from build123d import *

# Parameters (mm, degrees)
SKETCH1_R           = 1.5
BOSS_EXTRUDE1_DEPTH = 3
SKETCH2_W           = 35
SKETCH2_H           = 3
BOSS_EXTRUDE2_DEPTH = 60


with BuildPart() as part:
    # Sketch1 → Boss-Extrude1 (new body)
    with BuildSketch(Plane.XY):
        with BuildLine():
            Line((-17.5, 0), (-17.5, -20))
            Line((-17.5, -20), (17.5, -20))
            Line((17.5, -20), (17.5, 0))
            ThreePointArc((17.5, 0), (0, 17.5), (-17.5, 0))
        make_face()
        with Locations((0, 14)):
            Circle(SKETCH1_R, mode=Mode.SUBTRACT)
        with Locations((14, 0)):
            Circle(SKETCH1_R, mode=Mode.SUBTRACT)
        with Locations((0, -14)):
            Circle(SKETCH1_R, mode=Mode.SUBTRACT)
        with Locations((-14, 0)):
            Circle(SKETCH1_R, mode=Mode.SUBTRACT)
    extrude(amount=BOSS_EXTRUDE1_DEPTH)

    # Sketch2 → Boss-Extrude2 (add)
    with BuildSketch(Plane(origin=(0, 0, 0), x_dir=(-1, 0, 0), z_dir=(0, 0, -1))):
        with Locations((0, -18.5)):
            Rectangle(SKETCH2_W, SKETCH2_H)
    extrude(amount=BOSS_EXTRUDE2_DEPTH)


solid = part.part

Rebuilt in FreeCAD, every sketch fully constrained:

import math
import FreeCAD as App
import Part
import Sketcher
from FreeCAD import Vector


def add_polygon(sketch, points):
    """Adds a closed chain of lines whose ends are joined by coincident constraints."""
    first, n = sketch.GeometryCount, len(points)
    for a, b in zip(points, points[1:] + points[:1]):
        sketch.addGeometry(Part.LineSegment(App.Vector(*a, 0), App.Vector(*b, 0)), False)
    for i in range(n):
        sketch.addConstraint(Sketcher.Constraint("Coincident", first + i, 2, first + (i + 1) % n, 1))

doc = App.newDocument("Part")
body = doc.addObject("PartDesign::Body", "Body")

# Sketch on XY plane
sketch1 = doc.addObject("Sketcher::SketchObject", "Sketch")
body.addObject(sketch1)
sketch1.AttachmentSupport = (doc.XY_Plane, [""])
sketch1.MapMode = "FlatFace"
sketch1.addGeometry(Part.LineSegment(Vector(-17.5, 0, 0), Vector(-17.5, -20, 0)), False)
sketch1.addGeometry(Part.LineSegment(Vector(-17.5, -20, 0), Vector(17.5, -20, 0)), False)
sketch1.addGeometry(Part.LineSegment(Vector(17.5, -20, 0), Vector(17.5, 0, 0)), False)
sketch1.addGeometry(Part.ArcOfCircle(Part.Circle(Vector(0, 0, 0), Vector(0, 0, 1), 17.5), math.radians(0), math.radians(180)), False)
sketch1.addGeometry(Part.Circle(Vector(0, -14, 0), Vector(0, 0, 1), 1.5), False)
sketch1.addGeometry(Part.Circle(Vector(-14, 0, 0), Vector(0, 0, 1), 1.5), False)
sketch1.addGeometry(Part.Circle(Vector(14, 0, 0), Vector(0, 0, 1), 1.5), False)
sketch1.addGeometry(Part.Circle(Vector(0, 14, 0), Vector(0, 0, 1), 1.5), False)
sketch1.addConstraint(Sketcher.Constraint("Coincident", 0, 2, 1, 1))
sketch1.addConstraint(Sketcher.Constraint("Coincident", 1, 2, 2, 1))
sketch1.addConstraint(Sketcher.Constraint("Tangent", 2, 2, 3, 1))
sketch1.addConstraint(Sketcher.Constraint("Tangent", 3, 2, 0, 1))
sketch1.addConstraint(Sketcher.Constraint("Vertical", 0))
sketch1.addConstraint(Sketcher.Constraint("Horizontal", 1))
sketch1.addConstraint(Sketcher.Constraint("Vertical", 2))
sketch1.addConstraint(Sketcher.Constraint("Coincident", 3, 3, -1, 1))
sketch1.addConstraint(Sketcher.Constraint("Equal", 4, 5))
sketch1.addConstraint(Sketcher.Constraint("Equal", 5, 6))
sketch1.addConstraint(Sketcher.Constraint("Equal", 6, 7))
sketch1.addConstraint(Sketcher.Constraint("Symmetric", 5, 3, 6, 3, -1, 1))
sketch1.addConstraint(Sketcher.Constraint("Symmetric", 4, 3, 7, 3, -1, 1))
sketch1.addConstraint(Sketcher.Constraint("PointOnObject", 4, 3, -2))
sketch1.addConstraint(Sketcher.Constraint("PointOnObject", 5, 3, -1))
sketch1.addConstraint(Sketcher.Constraint("Diameter", 4, 3.0))
sketch1.addConstraint(Sketcher.Constraint("Radius", 3, 17.5))
sketch1.addConstraint(Sketcher.Constraint("DistanceY", 0, 2, 0, 1, 20.0))
sketch1.addConstraint(Sketcher.Constraint("DistanceY", 4, 3, -1, 1, 14.0))
sketch1.addConstraint(Sketcher.Constraint("DistanceX", 5, 3, -1, 1, 14.0))
pad1 = doc.addObject("PartDesign::Pad", "Pad")
body.addObject(pad1)
pad1.Profile = sketch1
pad1.Length = 3

# Sketch on XY plane
sketch2 = doc.addObject("Sketcher::SketchObject", "Sketch001")
body.addObject(sketch2)
sketch2.AttachmentSupport = (doc.XY_Plane, [""])
sketch2.MapMode = "FlatFace"
add_polygon(sketch2, [(17.5, -17), (17.5, -20), (-17.5, -20), (-17.5, -17)])  # lines 0-3
sketch2.addConstraint(Sketcher.Constraint("Vertical", 0))
sketch2.addConstraint(Sketcher.Constraint("Horizontal", 1))
sketch2.addConstraint(Sketcher.Constraint("Vertical", 2))
sketch2.addConstraint(Sketcher.Constraint("Horizontal", 3))
sketch2.addConstraint(Sketcher.Constraint("DistanceX", 1, 2, 1, 1, 35.0))
sketch2.addConstraint(Sketcher.Constraint("DistanceY", 0, 2, 0, 1, 3.0))
sketch2.addConstraint(Sketcher.Constraint("DistanceY", 0, 2, -1, 1, 20.0))
sketch2.addConstraint(Sketcher.Constraint("DistanceX", -1, 1, 0, 2, 17.5))
pad2 = doc.addObject("PartDesign::Pad", "Pad001")
body.addObject(pad2)
pad2.Profile = sketch2
pad2.Length = 60
pad2.Reversed = True

doc.recompute()
